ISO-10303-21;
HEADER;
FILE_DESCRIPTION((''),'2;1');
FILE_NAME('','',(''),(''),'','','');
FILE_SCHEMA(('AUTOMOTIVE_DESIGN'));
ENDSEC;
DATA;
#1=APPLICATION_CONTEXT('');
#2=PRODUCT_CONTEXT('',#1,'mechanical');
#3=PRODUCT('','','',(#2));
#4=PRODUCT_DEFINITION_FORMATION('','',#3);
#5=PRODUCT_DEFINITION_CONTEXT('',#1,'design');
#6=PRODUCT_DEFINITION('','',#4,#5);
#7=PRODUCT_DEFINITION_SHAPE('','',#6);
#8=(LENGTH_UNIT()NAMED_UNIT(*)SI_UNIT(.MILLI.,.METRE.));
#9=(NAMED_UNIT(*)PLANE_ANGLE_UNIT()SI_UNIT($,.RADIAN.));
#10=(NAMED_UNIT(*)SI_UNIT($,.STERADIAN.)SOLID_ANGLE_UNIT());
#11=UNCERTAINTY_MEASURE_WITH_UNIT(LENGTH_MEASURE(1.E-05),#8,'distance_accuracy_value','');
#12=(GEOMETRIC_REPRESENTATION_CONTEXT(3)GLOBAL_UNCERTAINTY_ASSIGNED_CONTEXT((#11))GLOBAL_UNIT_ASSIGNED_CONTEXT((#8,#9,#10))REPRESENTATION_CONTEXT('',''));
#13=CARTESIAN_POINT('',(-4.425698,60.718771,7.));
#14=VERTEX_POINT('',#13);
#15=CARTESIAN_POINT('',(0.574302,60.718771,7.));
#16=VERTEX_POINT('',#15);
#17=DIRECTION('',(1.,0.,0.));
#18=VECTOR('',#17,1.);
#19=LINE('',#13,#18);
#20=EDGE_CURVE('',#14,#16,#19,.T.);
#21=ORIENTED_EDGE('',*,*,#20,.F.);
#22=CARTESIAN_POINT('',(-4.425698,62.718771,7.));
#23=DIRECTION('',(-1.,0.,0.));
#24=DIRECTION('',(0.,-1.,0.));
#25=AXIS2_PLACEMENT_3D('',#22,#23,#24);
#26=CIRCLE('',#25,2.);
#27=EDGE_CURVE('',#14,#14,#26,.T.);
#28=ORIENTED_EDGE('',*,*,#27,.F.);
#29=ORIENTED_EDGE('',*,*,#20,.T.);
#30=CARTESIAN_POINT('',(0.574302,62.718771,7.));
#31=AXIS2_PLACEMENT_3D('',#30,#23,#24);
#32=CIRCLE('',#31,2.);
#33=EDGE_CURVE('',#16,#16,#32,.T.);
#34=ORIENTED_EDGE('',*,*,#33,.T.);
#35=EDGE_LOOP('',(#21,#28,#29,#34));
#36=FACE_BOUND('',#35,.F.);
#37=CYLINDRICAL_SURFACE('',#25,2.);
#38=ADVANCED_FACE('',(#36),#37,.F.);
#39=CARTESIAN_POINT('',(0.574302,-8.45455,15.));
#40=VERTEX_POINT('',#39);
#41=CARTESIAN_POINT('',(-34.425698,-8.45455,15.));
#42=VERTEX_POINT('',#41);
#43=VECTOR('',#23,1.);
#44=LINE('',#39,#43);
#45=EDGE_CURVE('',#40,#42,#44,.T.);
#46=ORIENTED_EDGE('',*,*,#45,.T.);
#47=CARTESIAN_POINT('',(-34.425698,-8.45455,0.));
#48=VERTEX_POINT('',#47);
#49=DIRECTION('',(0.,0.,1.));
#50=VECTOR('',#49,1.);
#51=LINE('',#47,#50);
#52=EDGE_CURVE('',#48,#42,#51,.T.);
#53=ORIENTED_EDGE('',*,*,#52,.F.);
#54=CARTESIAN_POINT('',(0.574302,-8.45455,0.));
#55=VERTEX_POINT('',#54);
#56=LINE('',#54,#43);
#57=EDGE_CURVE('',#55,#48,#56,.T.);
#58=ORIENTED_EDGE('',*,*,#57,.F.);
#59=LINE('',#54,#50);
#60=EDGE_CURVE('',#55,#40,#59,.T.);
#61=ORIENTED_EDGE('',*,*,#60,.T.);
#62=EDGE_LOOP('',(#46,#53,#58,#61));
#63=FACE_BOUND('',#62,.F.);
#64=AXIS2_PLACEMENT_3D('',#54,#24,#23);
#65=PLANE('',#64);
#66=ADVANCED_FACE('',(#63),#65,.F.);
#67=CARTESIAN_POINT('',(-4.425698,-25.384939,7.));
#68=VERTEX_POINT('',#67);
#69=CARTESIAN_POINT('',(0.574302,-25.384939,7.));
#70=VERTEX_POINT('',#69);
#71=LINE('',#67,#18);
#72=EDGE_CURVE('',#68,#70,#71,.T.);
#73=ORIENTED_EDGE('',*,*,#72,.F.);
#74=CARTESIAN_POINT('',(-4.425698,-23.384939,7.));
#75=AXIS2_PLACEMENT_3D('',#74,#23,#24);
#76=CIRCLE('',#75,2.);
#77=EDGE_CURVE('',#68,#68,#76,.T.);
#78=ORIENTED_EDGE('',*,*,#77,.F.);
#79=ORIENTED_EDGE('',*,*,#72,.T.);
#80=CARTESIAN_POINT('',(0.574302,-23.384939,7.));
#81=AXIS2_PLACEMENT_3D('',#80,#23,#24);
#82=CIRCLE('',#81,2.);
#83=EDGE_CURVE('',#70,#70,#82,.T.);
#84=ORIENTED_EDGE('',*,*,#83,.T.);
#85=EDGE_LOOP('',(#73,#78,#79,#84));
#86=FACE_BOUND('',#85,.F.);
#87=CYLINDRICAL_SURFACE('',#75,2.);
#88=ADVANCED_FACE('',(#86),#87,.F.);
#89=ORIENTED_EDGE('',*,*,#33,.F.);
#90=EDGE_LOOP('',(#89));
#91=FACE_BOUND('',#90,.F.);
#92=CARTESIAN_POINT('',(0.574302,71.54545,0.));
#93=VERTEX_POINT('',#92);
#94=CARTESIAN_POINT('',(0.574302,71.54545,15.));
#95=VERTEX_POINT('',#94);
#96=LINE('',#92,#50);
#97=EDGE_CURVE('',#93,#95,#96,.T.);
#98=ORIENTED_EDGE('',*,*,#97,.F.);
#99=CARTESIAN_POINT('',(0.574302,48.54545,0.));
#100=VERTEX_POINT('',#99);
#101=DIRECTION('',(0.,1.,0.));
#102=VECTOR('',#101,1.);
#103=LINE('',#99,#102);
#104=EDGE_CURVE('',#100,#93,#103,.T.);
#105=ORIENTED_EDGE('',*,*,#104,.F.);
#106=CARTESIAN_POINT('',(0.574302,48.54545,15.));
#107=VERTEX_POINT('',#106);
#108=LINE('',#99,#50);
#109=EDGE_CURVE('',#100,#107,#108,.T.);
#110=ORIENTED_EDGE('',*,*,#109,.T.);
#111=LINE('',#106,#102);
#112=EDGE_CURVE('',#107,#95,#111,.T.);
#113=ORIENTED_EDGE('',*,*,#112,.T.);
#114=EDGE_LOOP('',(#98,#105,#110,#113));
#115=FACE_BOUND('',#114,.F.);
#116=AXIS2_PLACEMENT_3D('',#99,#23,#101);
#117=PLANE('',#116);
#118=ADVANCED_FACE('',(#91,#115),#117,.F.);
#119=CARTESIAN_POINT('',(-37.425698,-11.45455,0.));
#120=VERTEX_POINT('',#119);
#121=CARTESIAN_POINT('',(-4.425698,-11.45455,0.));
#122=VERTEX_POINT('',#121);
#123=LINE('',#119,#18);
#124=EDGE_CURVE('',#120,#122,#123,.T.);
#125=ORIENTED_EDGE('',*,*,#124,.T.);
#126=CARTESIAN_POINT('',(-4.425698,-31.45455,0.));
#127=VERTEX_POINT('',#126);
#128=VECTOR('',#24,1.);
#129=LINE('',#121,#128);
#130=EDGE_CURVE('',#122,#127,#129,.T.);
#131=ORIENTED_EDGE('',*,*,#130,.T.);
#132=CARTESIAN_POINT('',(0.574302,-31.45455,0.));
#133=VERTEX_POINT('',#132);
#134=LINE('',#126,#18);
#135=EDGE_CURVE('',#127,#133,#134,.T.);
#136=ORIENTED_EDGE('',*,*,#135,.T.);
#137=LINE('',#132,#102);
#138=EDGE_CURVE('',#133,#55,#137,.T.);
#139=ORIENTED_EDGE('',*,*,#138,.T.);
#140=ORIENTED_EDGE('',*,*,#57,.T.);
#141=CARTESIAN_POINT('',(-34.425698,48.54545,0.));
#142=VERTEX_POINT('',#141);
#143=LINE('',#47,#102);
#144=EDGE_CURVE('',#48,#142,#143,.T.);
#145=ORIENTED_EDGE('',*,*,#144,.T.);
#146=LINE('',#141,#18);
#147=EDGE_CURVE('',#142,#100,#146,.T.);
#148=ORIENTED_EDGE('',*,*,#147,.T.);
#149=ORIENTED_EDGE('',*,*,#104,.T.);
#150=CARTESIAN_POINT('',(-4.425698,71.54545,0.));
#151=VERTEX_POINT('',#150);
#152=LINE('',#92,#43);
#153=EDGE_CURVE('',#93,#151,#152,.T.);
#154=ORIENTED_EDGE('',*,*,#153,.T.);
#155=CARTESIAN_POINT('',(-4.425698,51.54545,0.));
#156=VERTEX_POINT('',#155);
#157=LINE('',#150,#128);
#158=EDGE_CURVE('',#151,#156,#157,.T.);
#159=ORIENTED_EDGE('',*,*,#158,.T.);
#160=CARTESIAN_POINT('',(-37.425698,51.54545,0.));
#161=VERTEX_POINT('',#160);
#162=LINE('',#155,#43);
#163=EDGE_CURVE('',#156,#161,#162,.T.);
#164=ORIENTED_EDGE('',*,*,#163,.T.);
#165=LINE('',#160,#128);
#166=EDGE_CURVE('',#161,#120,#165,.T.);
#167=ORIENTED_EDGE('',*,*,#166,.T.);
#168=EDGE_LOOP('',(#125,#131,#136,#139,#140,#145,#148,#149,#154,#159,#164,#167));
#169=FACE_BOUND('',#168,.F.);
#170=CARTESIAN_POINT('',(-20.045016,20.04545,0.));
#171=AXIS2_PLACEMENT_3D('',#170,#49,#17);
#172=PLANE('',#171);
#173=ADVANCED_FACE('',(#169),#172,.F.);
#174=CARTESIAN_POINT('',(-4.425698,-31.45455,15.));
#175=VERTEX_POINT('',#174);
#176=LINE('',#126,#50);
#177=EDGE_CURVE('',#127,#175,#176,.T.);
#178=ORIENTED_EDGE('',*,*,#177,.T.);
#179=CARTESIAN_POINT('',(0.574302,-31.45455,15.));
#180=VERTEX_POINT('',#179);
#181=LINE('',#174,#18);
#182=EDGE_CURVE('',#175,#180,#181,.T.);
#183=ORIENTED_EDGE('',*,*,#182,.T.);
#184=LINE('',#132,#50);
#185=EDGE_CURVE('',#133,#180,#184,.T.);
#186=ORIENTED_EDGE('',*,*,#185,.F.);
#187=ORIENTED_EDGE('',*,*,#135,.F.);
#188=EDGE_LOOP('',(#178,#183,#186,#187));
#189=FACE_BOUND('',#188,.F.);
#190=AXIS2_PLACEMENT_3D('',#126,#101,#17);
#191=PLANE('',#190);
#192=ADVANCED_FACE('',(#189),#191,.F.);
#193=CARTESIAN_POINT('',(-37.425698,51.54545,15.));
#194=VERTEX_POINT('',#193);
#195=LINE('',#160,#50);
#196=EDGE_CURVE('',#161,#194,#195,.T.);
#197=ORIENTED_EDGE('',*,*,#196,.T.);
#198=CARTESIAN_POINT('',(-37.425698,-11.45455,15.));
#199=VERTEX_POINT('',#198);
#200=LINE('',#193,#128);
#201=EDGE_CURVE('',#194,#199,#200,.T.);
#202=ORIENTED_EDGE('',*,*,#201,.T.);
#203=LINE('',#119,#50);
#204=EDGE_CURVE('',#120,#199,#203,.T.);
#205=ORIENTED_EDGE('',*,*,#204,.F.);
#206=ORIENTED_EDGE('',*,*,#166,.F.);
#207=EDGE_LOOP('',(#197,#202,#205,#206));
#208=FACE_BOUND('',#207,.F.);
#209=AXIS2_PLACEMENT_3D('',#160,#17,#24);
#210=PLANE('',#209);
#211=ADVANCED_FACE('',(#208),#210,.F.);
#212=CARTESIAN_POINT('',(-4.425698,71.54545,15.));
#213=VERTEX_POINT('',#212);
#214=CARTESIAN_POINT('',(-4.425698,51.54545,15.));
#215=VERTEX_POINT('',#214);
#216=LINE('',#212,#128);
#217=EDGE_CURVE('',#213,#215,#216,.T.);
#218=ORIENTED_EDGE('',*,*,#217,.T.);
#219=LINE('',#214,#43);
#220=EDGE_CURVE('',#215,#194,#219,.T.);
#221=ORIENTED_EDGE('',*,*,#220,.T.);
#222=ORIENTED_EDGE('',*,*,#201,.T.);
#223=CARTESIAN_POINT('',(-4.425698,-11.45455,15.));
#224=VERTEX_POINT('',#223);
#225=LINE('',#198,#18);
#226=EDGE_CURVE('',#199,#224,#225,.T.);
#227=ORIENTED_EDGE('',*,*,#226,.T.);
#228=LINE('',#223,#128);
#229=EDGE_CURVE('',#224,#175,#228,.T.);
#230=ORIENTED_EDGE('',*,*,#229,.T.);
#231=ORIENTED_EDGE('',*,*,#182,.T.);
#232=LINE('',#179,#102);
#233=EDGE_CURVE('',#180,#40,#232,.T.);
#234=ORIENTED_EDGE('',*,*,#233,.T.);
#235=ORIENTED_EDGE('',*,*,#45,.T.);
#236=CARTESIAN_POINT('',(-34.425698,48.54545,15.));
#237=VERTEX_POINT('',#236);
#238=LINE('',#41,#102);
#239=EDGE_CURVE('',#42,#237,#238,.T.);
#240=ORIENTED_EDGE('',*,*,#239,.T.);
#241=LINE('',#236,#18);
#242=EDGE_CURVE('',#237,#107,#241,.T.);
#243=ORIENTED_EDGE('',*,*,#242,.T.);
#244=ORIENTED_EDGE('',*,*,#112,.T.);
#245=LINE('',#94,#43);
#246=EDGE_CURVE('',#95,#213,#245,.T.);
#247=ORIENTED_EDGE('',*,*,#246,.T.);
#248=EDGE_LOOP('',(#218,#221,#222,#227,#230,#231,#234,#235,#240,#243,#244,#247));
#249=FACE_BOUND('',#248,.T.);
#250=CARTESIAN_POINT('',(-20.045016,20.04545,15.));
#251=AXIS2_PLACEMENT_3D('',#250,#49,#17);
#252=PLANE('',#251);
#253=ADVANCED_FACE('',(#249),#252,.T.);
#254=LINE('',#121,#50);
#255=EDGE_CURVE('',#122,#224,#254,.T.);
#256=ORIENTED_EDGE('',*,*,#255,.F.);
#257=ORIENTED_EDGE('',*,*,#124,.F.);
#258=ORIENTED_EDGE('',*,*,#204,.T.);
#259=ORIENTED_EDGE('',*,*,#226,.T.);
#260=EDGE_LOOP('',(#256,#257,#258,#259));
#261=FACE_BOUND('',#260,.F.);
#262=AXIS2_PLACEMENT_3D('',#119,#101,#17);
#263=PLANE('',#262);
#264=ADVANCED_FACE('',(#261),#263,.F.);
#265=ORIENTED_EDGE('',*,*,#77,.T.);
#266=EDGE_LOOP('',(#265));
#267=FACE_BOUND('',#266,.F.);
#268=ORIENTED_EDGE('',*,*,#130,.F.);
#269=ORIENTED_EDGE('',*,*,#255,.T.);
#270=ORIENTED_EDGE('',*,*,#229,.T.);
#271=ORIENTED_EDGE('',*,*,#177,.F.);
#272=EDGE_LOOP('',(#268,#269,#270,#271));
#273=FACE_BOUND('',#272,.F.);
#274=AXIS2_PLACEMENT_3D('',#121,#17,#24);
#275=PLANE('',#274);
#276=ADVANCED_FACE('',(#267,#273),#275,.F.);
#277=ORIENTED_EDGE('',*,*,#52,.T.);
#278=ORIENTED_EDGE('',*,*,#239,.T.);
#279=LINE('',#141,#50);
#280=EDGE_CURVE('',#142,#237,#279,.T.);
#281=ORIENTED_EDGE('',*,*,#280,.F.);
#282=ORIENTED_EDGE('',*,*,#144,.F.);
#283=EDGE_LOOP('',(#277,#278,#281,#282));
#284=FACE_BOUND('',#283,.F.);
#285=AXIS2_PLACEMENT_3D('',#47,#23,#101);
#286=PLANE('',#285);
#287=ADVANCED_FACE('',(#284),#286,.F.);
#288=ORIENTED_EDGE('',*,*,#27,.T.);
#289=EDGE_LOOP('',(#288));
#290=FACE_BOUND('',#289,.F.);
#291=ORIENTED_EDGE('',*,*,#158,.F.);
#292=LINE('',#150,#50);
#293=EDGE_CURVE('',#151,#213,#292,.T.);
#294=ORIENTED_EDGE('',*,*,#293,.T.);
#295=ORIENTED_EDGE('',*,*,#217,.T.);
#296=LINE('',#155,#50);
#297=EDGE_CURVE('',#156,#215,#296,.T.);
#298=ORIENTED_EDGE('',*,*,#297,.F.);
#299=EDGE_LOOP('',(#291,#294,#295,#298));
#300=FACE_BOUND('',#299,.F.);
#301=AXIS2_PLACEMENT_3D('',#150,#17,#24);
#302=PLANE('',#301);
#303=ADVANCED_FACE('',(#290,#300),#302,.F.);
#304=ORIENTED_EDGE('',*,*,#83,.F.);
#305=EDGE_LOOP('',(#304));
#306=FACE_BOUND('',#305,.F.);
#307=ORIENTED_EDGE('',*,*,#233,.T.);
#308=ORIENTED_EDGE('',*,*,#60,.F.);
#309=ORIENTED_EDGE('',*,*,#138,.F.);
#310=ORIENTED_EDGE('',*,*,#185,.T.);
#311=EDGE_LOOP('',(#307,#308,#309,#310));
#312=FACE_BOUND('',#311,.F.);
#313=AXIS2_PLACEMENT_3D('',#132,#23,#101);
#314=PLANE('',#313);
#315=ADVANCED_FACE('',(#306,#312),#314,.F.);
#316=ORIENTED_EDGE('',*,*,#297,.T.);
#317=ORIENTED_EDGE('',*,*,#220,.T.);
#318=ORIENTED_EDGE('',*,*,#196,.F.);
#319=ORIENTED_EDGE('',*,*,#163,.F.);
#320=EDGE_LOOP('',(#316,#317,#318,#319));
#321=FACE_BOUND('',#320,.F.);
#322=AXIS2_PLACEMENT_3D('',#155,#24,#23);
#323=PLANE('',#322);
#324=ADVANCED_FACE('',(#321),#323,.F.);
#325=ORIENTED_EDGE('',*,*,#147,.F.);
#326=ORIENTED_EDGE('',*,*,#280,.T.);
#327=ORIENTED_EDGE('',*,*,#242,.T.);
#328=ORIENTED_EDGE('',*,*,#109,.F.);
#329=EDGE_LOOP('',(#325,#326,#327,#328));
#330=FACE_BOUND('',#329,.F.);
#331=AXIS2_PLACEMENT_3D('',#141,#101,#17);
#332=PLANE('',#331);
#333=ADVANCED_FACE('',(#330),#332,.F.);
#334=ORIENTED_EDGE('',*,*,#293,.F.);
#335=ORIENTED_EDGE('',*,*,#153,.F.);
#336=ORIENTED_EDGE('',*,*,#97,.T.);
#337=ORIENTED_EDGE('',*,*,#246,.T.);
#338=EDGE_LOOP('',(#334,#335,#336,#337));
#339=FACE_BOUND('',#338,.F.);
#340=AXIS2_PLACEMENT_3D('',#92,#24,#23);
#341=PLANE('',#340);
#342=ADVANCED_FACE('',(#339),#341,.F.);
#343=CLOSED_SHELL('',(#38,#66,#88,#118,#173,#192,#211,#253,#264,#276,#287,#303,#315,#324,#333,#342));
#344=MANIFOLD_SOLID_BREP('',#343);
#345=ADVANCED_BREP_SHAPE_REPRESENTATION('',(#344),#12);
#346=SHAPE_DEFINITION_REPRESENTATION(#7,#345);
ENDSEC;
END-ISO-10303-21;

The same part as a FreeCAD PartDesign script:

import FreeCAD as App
import Part
import Sketcher
from FreeCAD import Vector
Q = App.Units.Quantity

doc = App.newDocument("Part")
body = doc.addObject("PartDesign::Body", "Body")

# Sketch on XY plane
sketch1 = body.newObject("Sketcher::SketchObject", "Sketch")
sketch1.AttachmentSupport = (doc.getObject("XY_Plane"), [""])
sketch1.MapMode = "FlatFace"
sketch1.addGeometry([
    Part.LineSegment(Vector(-4.425698, 71.54545, 0), Vector(-4.425698, 51.54545, 0)),  # 0
    Part.LineSegment(Vector(-4.425698, 51.54545, 0), Vector(-37.425698, 51.54545, 0)),  # 1
    Part.LineSegment(Vector(-37.425698, 51.54545, 0), Vector(-37.425698, -11.45455, 0)),  # 2
    Part.LineSegment(Vector(-37.425698, -11.45455, 0), Vector(-4.425698, -11.45455, 0)),  # 3
    Part.LineSegment(Vector(-4.425698, -11.45455, 0), Vector(-4.425698, -31.45455, 0)),  # 4
    Part.LineSegment(Vector(-4.425698, -31.45455, 0), Vector(0.574302, -31.45455, 0)),  # 5
    Part.LineSegment(Vector(0.574302, -31.45455, 0), Vector(0.574302, -8.45455, 0)),  # 6
    Part.LineSegment(Vector(0.574302, -8.45455, 0), Vector(-34.425698, -8.45455, 0)),  # 7
    Part.LineSegment(Vector(-34.425698, -8.45455, 0), Vector(-34.425698, 48.54545, 0)),  # 8
    Part.LineSegment(Vector(-34.425698, 48.54545, 0), Vector(0.574302, 48.54545, 0)),  # 9
    Part.LineSegment(Vector(0.574302, 48.54545, 0), Vector(0.574302, 71.54545, 0)),  # 10
    Part.LineSegment(Vector(0.574302, 71.54545, 0), Vector(-4.425698, 71.54545, 0)),  # 11
], False)
sketch1.addConstraint([
    Sketcher.Constraint("Coincident", 0, 2, 1, 1),
    Sketcher.Constraint("Coincident", 1, 2, 2, 1),
    Sketcher.Constraint("Coincident", 2, 2, 3, 1),
    Sketcher.Constraint("Coincident", 3, 2, 4, 1),
    Sketcher.Constraint("Coincident", 4, 2, 5, 1),
    Sketcher.Constraint("Coincident", 5, 2, 6, 1),
    Sketcher.Constraint("Coincident", 6, 2, 7, 1),
    Sketcher.Constraint("Coincident", 7, 2, 8, 1),
    Sketcher.Constraint("Coincident", 8, 2, 9, 1),
    Sketcher.Constraint("Coincident", 9, 2, 10, 1),
    Sketcher.Constraint("Coincident", 10, 2, 11, 1),
    Sketcher.Constraint("Coincident", 11, 2, 0, 1),
    Sketcher.Constraint("Vertical", 0),
    Sketcher.Constraint("Horizontal", 1),
    Sketcher.Constraint("Vertical", 2),
    Sketcher.Constraint("Horizontal", 3),
    Sketcher.Constraint("Vertical", 4),
    Sketcher.Constraint("Horizontal", 5),
    Sketcher.Constraint("Vertical", 6),
    Sketcher.Constraint("Horizontal", 7),
    Sketcher.Constraint("Vertical", 8),
    Sketcher.Constraint("Horizontal", 9),
    Sketcher.Constraint("Vertical", 10),
    Sketcher.Constraint("Horizontal", 11),
    Sketcher.Constraint("Vertical", 0, 2, 3, 2),
    Sketcher.Constraint("Vertical", 6, 2, 9, 2),
    Sketcher.Constraint("Equal", 0, 4),
    Sketcher.Constraint("Equal", 6, 10),
    Sketcher.Constraint("DistanceX", 1, 2, 1, 1, Q("33 mm")),
    Sketcher.Constraint("DistanceX", 5, 1, 5, 2, Q("5 mm")),
    Sketcher.Constraint("DistanceX", 7, 2, 7, 1, Q("35 mm")),
    Sketcher.Constraint("DistanceY", 0, 2, 0, 1, Q("20 mm")),
    Sketcher.Constraint("DistanceY", 2, 2, 2, 1, Q("63 mm")),
    Sketcher.Constraint("DistanceY", 6, 1, 6, 2, Q("23 mm")),
    Sketcher.Constraint("DistanceX", -1, 1, 5, 2, Q("0.574302 mm")),
    Sketcher.Constraint("DistanceY", -1, 1, 0, 2, Q("51.54545 mm")),
])
pad1 = body.newObject("PartDesign::Pad", "Pad")
pad1.Profile = sketch1
pad1.Length = 15

# Sketch on YZ plane
sketch2 = body.newObject("Sketcher::SketchObject", "Sketch001")
sketch2.AttachmentSupport = (doc.getObject("YZ_Plane"), [""])
sketch2.MapMode = "FlatFace"
sketch2.AttachmentOffset = App.Placement(Vector(0, 0, -4.425698), App.Rotation())
sketch2.addGeometry([
    Part.Circle(Vector(62.718771, 7, 0), Vector(0, 0, 1), 2),
    Part.Circle(Vector(-23.384939, 7, 0), Vector(0, 0, 1), 2),
], False)
sketch2.addConstraint([
    Sketcher.Constraint("Equal", 0, 1),
    Sketcher.Constraint("Horizontal", 0, 3, 1, 3),
    Sketcher.Constraint("Diameter", 0, Q("4 mm")),
    Sketcher.Constraint("DistanceY", -1, 1, 0, 3, Q("7 mm")),
    Sketcher.Constraint("DistanceX", -1, 1, 0, 3, Q("62.718771 mm")),
    Sketcher.Constraint("DistanceX", 1, 3, -1, 1, Q("23.384939 mm")),
])
pocket1 = body.newObject("PartDesign::Pocket", "Pocket")
pocket1.Profile = sketch2
pocket1.Length = 25
pocket1.Reversed = True

doc.recompute()
